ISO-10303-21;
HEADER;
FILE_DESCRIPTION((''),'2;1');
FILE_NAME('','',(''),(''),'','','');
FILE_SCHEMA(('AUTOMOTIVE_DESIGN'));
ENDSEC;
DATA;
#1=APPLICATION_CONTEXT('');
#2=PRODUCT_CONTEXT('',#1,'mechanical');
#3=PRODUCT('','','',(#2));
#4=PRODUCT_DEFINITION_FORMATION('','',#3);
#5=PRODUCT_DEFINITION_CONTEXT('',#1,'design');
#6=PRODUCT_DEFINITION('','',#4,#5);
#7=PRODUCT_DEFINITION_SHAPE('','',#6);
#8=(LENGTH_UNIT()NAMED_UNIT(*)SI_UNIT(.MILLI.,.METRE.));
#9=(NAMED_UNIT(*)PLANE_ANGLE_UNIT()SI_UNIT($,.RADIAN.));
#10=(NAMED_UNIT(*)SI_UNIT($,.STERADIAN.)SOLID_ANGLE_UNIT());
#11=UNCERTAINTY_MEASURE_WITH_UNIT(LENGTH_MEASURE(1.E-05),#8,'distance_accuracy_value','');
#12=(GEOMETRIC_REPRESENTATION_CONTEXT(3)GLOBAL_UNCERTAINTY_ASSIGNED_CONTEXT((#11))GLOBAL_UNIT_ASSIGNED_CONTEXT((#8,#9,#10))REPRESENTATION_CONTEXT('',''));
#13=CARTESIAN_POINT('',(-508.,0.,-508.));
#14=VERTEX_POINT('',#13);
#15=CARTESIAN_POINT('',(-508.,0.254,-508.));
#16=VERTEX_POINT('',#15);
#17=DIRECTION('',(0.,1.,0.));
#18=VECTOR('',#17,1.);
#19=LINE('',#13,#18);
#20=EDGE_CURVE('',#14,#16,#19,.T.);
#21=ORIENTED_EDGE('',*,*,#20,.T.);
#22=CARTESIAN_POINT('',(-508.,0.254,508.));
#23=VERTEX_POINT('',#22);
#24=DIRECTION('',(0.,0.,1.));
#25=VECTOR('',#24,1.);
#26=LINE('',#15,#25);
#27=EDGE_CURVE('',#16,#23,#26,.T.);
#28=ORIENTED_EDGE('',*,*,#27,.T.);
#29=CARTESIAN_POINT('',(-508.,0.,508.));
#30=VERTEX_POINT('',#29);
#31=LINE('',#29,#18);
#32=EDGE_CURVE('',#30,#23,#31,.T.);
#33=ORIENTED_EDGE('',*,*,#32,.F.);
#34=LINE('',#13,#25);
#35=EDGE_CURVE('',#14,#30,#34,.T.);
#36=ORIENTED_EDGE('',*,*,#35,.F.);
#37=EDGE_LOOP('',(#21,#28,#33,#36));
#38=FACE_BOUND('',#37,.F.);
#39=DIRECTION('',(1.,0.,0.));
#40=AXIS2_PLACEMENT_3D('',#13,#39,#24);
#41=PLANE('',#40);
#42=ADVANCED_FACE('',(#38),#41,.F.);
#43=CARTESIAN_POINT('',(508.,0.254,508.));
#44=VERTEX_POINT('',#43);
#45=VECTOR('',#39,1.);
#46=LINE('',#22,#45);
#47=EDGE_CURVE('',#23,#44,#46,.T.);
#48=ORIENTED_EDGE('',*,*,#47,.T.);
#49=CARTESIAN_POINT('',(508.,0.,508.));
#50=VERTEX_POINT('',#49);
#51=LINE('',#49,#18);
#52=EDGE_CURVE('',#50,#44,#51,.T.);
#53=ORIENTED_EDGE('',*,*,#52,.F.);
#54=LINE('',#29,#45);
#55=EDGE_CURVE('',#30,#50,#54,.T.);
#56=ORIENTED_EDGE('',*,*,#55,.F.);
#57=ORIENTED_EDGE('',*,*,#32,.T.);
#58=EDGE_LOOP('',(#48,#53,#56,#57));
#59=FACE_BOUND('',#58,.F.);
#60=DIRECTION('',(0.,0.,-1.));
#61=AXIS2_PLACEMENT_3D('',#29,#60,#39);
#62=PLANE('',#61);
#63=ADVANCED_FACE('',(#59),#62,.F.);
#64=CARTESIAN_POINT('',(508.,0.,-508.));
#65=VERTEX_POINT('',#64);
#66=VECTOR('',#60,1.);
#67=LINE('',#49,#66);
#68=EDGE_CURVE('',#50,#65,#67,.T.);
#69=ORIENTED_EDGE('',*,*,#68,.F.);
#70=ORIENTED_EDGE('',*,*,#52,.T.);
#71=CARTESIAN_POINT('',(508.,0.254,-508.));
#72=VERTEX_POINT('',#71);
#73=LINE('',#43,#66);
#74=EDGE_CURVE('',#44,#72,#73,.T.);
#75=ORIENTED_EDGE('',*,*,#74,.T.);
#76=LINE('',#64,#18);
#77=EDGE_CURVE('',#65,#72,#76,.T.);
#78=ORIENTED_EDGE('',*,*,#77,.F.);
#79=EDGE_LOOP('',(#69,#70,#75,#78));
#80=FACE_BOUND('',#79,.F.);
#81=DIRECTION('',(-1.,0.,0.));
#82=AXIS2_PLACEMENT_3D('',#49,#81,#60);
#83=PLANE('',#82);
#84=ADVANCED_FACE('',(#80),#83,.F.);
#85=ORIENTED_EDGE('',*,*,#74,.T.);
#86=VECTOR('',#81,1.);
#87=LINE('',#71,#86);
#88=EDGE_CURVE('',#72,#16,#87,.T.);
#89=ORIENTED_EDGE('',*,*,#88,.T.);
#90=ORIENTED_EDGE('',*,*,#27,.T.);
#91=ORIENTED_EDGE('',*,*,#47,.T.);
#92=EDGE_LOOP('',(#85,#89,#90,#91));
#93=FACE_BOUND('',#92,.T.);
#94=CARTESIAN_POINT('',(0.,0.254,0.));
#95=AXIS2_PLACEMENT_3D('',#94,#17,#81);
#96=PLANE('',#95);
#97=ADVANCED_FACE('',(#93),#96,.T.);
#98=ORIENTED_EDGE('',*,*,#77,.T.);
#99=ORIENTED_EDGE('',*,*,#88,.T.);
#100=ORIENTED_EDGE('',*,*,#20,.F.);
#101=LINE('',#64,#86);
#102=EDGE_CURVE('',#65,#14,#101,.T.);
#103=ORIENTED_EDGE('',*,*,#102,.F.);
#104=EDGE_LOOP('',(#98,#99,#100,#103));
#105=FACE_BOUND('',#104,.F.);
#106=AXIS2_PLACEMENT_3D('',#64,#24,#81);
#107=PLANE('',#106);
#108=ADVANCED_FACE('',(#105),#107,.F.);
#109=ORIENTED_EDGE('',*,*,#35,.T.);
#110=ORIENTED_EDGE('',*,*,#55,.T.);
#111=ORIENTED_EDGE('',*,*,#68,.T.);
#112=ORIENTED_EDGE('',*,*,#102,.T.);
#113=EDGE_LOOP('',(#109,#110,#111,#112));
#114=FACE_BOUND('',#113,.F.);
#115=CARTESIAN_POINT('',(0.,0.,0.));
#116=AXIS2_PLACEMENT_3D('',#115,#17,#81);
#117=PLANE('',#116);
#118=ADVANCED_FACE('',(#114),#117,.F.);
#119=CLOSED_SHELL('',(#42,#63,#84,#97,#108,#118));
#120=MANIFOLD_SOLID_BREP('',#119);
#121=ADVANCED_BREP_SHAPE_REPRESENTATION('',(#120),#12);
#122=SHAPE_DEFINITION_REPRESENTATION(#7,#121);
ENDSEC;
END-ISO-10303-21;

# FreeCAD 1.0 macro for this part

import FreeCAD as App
import Part
import Sketcher
from FreeCAD import Vector
Q = App.Units.Quantity

doc = App.newDocument("Part")
body = doc.addObject("PartDesign::Body", "Body")

# Sketch on XZ plane
sketch1 = doc.addObject("Sketcher::SketchObject", "Sketch")
body.addObject(sketch1)
sketch1.AttachmentSupport = (doc.XZ_Plane, [""])
sketch1.MapMode = "FlatFace"
sketch1.addGeometry([
    Part.LineSegment(Vector(-508, -508, 0), Vector(-508, 508, 0)),
    Part.LineSegment(Vector(-508, 508, 0), Vector(508, 508, 0)),
    Part.LineSegment(Vector(508, 508, 0), Vector(508, -508, 0)),
    Part.LineSegment(Vector(508, -508, 0), Vector(-508, -508, 0)),
], False)
sketch1.addConstraint([
    Sketcher.Constraint("Coincident", 0, 2, 1, 1),
    Sketcher.Constraint("Coincident", 1, 2, 2, 1),
    Sketcher.Constraint("Coincident", 2, 2, 3, 1),
    Sketcher.Constraint("Coincident", 3, 2, 0, 1),
    Sketcher.Constraint("Vertical", 0),
    Sketcher.Constraint("Horizontal", 1),
    Sketcher.Constraint("Vertical", 2),
    Sketcher.Constraint("Horizontal", 3),
    Sketcher.Constraint("Symmetric", 0, 2, 2, 2, -1, 1),
    Sketcher.Constraint("Equal", 3, 0),
    Sketcher.Constraint("DistanceX", 1, 1, 1, 2, Q("40 in")),
])
pad1 = doc.addObject("PartDesign::Pad", "Pad")
body.addObject(pad1)
pad1.Profile = sketch1
pad1.Length = Q("0.01 in")
pad1.Reversed = True

doc.recompute()
